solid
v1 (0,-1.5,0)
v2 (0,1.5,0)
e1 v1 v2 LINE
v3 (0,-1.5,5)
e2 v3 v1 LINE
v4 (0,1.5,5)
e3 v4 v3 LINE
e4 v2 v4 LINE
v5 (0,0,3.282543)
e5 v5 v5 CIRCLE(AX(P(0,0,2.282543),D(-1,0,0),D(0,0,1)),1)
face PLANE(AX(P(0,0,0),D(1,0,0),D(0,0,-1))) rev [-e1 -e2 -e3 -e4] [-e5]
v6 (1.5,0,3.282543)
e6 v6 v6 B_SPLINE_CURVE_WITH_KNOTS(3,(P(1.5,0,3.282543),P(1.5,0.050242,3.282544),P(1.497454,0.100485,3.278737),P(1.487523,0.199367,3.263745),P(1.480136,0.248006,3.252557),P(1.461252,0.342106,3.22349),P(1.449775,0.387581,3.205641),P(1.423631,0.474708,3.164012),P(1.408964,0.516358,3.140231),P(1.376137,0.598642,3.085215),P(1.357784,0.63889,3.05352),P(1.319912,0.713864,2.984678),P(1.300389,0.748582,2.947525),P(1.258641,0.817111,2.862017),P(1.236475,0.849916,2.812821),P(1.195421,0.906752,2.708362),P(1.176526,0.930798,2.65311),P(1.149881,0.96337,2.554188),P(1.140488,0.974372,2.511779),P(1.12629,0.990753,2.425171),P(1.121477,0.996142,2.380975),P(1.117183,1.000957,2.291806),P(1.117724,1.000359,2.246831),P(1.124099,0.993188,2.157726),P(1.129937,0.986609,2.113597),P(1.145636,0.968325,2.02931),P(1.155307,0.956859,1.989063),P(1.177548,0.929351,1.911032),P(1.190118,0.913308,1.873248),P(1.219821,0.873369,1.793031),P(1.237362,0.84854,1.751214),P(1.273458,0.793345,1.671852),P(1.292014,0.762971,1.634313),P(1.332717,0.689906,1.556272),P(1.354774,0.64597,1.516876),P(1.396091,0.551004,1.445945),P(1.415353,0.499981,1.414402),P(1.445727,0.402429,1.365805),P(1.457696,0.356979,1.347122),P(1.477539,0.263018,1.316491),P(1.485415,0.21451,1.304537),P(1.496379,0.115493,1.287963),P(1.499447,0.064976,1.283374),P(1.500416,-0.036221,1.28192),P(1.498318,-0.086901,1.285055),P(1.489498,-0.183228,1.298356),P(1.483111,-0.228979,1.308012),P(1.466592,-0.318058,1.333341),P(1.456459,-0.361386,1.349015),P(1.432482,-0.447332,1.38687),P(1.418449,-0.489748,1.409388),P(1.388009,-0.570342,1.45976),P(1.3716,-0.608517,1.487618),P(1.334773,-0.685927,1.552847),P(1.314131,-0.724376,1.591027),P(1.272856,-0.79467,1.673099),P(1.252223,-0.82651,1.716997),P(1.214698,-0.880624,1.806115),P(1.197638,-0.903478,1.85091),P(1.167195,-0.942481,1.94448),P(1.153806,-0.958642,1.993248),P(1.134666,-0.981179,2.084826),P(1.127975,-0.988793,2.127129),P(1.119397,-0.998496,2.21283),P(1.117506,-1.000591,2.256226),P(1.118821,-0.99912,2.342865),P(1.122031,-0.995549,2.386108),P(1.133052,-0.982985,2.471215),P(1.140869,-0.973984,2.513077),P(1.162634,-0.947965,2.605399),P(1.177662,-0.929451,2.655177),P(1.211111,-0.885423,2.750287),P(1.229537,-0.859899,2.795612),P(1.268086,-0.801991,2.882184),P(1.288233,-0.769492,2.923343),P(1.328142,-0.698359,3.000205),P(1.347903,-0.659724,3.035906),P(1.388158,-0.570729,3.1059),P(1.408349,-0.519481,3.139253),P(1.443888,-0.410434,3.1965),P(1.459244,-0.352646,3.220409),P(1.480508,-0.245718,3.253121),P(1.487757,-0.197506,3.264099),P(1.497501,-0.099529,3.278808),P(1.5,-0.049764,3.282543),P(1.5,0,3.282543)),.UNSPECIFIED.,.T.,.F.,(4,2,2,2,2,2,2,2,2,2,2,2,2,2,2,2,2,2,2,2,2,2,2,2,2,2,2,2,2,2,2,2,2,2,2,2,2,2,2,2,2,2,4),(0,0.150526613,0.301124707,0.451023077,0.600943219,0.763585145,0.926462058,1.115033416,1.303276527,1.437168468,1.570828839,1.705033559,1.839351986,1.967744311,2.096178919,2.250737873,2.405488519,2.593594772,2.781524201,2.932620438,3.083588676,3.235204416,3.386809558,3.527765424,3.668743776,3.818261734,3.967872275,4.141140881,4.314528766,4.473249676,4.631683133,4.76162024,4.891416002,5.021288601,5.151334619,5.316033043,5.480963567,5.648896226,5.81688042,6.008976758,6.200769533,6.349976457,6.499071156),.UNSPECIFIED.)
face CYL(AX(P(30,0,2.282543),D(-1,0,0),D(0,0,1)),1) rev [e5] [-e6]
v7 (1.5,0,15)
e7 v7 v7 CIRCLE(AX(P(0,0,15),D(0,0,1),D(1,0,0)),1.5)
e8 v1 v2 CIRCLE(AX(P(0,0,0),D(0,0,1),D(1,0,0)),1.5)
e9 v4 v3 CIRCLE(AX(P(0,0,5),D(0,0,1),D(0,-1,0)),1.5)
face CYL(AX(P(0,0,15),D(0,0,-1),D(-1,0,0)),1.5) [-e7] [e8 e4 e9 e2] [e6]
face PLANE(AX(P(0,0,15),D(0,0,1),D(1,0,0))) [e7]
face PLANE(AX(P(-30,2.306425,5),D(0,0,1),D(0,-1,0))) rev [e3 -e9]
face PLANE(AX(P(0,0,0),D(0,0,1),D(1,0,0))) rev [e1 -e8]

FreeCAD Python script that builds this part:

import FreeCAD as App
import Part
import Sketcher

V = App.Vector
Q = App.Units.Quantity

doc = App.newDocument("Part")
body = doc.addObject("PartDesign::Body", "Body")

# Sketch on XY plane
sketch1 = body.newObject("Sketcher::SketchObject", "Sketch")
sketch1.AttachmentSupport = (doc.getObject("XY_Plane"), [""])
sketch1.MapMode = "FlatFace"
sketch1.addGeometry(Part.Circle(V(0, 0, 0), V(0, 0, 1), 1.5), False)
sketch1.addConstraint(Sketcher.Constraint("Coincident", 0, 3, -1, 1))
sketch1.addConstraint(Sketcher.Constraint("Diameter", 0, Q("3 mm")))
pad1 = body.newObject("PartDesign::Pad", "Pad")
pad1.Profile = sketch1
pad1.Length = 15

# Sketch on YZ plane
sketch2 = body.newObject("Sketcher::SketchObject", "Sketch001")
sketch2.AttachmentSupport = (doc.getObject("YZ_Plane"), [""])
sketch2.MapMode = "FlatFace"
sketch2.addGeometry(Part.LineSegment(V(2.3, 5, 0), V(-2.4, 5, 0)), False)
sketch2.addGeometry(Part.LineSegment(V(-2.4, 5, 0), V(-2.4, 0, 0)), False)
sketch2.addGeometry(Part.LineSegment(V(-2.4, 0, 0), V(2.3, 0, 0)), False)
sketch2.addGeometry(Part.LineSegment(V(2.3, 0, 0), V(2.3, 5, 0)), False)
sketch2.addConstraint(Sketcher.Constraint("Coincident", 0, 2, 1, 1))
sketch2.addConstraint(Sketcher.Constraint("Coincident", 1, 2, 2, 1))
sketch2.addConstraint(Sketcher.Constraint("Coincident", 2, 2, 3, 1))
sketch2.addConstraint(Sketcher.Constraint("Coincident", 3, 2, 0, 1))
sketch2.addConstraint(Sketcher.Constraint("Horizontal", 0))
sketch2.addConstraint(Sketcher.Constraint("Vertical", 1))
sketch2.addConstraint(Sketcher.Constraint("Horizontal", 2))
sketch2.addConstraint(Sketcher.Constraint("Vertical", 3))
sketch2.addConstraint(Sketcher.Constraint("PointOnObject", 1, 2, -1))
sketch2.addConstraint(Sketcher.Constraint("DistanceY", 1, 2, 1, 1, Q("5 mm")))
sketch2.addConstraint(Sketcher.Constraint("DistanceX", 0, 2, -1, 1, Q("2.390598 mm")))
sketch2.addConstraint(Sketcher.Constraint("DistanceX", 0, 2, 0, 1, Q("4.697024 mm")))
pocket1 = body.newObject("PartDesign::Pocket", "Pocket")
pocket1.Profile = sketch2
pocket1.Length = 30

# Sketch on YZ plane
sketch3 = body.newObject("Sketcher::SketchObject", "Sketch002")
sketch3.AttachmentSupport = (doc.getObject("YZ_Plane"), [""])
sketch3.MapMode = "FlatFace"
sketch3.addGeometry(Part.Circle(V(0, 2.3, 0), V(0, 0, 1), 1), False)
sketch3.addConstraint(Sketcher.Constraint("PointOnObject", 0, 3, -2))
sketch3.addConstraint(Sketcher.Constraint("Diameter", 0, Q("2 mm")))
sketch3.addConstraint(Sketcher.Constraint("DistanceY", -1, 1, 0, 3, Q("2.282543 mm")))
pocket2 = body.newObject("PartDesign::Pocket", "Pocket001")
pocket2.Profile = sketch3
pocket2.Length = 30
pocket2.Reversed = True

doc.recompute()
